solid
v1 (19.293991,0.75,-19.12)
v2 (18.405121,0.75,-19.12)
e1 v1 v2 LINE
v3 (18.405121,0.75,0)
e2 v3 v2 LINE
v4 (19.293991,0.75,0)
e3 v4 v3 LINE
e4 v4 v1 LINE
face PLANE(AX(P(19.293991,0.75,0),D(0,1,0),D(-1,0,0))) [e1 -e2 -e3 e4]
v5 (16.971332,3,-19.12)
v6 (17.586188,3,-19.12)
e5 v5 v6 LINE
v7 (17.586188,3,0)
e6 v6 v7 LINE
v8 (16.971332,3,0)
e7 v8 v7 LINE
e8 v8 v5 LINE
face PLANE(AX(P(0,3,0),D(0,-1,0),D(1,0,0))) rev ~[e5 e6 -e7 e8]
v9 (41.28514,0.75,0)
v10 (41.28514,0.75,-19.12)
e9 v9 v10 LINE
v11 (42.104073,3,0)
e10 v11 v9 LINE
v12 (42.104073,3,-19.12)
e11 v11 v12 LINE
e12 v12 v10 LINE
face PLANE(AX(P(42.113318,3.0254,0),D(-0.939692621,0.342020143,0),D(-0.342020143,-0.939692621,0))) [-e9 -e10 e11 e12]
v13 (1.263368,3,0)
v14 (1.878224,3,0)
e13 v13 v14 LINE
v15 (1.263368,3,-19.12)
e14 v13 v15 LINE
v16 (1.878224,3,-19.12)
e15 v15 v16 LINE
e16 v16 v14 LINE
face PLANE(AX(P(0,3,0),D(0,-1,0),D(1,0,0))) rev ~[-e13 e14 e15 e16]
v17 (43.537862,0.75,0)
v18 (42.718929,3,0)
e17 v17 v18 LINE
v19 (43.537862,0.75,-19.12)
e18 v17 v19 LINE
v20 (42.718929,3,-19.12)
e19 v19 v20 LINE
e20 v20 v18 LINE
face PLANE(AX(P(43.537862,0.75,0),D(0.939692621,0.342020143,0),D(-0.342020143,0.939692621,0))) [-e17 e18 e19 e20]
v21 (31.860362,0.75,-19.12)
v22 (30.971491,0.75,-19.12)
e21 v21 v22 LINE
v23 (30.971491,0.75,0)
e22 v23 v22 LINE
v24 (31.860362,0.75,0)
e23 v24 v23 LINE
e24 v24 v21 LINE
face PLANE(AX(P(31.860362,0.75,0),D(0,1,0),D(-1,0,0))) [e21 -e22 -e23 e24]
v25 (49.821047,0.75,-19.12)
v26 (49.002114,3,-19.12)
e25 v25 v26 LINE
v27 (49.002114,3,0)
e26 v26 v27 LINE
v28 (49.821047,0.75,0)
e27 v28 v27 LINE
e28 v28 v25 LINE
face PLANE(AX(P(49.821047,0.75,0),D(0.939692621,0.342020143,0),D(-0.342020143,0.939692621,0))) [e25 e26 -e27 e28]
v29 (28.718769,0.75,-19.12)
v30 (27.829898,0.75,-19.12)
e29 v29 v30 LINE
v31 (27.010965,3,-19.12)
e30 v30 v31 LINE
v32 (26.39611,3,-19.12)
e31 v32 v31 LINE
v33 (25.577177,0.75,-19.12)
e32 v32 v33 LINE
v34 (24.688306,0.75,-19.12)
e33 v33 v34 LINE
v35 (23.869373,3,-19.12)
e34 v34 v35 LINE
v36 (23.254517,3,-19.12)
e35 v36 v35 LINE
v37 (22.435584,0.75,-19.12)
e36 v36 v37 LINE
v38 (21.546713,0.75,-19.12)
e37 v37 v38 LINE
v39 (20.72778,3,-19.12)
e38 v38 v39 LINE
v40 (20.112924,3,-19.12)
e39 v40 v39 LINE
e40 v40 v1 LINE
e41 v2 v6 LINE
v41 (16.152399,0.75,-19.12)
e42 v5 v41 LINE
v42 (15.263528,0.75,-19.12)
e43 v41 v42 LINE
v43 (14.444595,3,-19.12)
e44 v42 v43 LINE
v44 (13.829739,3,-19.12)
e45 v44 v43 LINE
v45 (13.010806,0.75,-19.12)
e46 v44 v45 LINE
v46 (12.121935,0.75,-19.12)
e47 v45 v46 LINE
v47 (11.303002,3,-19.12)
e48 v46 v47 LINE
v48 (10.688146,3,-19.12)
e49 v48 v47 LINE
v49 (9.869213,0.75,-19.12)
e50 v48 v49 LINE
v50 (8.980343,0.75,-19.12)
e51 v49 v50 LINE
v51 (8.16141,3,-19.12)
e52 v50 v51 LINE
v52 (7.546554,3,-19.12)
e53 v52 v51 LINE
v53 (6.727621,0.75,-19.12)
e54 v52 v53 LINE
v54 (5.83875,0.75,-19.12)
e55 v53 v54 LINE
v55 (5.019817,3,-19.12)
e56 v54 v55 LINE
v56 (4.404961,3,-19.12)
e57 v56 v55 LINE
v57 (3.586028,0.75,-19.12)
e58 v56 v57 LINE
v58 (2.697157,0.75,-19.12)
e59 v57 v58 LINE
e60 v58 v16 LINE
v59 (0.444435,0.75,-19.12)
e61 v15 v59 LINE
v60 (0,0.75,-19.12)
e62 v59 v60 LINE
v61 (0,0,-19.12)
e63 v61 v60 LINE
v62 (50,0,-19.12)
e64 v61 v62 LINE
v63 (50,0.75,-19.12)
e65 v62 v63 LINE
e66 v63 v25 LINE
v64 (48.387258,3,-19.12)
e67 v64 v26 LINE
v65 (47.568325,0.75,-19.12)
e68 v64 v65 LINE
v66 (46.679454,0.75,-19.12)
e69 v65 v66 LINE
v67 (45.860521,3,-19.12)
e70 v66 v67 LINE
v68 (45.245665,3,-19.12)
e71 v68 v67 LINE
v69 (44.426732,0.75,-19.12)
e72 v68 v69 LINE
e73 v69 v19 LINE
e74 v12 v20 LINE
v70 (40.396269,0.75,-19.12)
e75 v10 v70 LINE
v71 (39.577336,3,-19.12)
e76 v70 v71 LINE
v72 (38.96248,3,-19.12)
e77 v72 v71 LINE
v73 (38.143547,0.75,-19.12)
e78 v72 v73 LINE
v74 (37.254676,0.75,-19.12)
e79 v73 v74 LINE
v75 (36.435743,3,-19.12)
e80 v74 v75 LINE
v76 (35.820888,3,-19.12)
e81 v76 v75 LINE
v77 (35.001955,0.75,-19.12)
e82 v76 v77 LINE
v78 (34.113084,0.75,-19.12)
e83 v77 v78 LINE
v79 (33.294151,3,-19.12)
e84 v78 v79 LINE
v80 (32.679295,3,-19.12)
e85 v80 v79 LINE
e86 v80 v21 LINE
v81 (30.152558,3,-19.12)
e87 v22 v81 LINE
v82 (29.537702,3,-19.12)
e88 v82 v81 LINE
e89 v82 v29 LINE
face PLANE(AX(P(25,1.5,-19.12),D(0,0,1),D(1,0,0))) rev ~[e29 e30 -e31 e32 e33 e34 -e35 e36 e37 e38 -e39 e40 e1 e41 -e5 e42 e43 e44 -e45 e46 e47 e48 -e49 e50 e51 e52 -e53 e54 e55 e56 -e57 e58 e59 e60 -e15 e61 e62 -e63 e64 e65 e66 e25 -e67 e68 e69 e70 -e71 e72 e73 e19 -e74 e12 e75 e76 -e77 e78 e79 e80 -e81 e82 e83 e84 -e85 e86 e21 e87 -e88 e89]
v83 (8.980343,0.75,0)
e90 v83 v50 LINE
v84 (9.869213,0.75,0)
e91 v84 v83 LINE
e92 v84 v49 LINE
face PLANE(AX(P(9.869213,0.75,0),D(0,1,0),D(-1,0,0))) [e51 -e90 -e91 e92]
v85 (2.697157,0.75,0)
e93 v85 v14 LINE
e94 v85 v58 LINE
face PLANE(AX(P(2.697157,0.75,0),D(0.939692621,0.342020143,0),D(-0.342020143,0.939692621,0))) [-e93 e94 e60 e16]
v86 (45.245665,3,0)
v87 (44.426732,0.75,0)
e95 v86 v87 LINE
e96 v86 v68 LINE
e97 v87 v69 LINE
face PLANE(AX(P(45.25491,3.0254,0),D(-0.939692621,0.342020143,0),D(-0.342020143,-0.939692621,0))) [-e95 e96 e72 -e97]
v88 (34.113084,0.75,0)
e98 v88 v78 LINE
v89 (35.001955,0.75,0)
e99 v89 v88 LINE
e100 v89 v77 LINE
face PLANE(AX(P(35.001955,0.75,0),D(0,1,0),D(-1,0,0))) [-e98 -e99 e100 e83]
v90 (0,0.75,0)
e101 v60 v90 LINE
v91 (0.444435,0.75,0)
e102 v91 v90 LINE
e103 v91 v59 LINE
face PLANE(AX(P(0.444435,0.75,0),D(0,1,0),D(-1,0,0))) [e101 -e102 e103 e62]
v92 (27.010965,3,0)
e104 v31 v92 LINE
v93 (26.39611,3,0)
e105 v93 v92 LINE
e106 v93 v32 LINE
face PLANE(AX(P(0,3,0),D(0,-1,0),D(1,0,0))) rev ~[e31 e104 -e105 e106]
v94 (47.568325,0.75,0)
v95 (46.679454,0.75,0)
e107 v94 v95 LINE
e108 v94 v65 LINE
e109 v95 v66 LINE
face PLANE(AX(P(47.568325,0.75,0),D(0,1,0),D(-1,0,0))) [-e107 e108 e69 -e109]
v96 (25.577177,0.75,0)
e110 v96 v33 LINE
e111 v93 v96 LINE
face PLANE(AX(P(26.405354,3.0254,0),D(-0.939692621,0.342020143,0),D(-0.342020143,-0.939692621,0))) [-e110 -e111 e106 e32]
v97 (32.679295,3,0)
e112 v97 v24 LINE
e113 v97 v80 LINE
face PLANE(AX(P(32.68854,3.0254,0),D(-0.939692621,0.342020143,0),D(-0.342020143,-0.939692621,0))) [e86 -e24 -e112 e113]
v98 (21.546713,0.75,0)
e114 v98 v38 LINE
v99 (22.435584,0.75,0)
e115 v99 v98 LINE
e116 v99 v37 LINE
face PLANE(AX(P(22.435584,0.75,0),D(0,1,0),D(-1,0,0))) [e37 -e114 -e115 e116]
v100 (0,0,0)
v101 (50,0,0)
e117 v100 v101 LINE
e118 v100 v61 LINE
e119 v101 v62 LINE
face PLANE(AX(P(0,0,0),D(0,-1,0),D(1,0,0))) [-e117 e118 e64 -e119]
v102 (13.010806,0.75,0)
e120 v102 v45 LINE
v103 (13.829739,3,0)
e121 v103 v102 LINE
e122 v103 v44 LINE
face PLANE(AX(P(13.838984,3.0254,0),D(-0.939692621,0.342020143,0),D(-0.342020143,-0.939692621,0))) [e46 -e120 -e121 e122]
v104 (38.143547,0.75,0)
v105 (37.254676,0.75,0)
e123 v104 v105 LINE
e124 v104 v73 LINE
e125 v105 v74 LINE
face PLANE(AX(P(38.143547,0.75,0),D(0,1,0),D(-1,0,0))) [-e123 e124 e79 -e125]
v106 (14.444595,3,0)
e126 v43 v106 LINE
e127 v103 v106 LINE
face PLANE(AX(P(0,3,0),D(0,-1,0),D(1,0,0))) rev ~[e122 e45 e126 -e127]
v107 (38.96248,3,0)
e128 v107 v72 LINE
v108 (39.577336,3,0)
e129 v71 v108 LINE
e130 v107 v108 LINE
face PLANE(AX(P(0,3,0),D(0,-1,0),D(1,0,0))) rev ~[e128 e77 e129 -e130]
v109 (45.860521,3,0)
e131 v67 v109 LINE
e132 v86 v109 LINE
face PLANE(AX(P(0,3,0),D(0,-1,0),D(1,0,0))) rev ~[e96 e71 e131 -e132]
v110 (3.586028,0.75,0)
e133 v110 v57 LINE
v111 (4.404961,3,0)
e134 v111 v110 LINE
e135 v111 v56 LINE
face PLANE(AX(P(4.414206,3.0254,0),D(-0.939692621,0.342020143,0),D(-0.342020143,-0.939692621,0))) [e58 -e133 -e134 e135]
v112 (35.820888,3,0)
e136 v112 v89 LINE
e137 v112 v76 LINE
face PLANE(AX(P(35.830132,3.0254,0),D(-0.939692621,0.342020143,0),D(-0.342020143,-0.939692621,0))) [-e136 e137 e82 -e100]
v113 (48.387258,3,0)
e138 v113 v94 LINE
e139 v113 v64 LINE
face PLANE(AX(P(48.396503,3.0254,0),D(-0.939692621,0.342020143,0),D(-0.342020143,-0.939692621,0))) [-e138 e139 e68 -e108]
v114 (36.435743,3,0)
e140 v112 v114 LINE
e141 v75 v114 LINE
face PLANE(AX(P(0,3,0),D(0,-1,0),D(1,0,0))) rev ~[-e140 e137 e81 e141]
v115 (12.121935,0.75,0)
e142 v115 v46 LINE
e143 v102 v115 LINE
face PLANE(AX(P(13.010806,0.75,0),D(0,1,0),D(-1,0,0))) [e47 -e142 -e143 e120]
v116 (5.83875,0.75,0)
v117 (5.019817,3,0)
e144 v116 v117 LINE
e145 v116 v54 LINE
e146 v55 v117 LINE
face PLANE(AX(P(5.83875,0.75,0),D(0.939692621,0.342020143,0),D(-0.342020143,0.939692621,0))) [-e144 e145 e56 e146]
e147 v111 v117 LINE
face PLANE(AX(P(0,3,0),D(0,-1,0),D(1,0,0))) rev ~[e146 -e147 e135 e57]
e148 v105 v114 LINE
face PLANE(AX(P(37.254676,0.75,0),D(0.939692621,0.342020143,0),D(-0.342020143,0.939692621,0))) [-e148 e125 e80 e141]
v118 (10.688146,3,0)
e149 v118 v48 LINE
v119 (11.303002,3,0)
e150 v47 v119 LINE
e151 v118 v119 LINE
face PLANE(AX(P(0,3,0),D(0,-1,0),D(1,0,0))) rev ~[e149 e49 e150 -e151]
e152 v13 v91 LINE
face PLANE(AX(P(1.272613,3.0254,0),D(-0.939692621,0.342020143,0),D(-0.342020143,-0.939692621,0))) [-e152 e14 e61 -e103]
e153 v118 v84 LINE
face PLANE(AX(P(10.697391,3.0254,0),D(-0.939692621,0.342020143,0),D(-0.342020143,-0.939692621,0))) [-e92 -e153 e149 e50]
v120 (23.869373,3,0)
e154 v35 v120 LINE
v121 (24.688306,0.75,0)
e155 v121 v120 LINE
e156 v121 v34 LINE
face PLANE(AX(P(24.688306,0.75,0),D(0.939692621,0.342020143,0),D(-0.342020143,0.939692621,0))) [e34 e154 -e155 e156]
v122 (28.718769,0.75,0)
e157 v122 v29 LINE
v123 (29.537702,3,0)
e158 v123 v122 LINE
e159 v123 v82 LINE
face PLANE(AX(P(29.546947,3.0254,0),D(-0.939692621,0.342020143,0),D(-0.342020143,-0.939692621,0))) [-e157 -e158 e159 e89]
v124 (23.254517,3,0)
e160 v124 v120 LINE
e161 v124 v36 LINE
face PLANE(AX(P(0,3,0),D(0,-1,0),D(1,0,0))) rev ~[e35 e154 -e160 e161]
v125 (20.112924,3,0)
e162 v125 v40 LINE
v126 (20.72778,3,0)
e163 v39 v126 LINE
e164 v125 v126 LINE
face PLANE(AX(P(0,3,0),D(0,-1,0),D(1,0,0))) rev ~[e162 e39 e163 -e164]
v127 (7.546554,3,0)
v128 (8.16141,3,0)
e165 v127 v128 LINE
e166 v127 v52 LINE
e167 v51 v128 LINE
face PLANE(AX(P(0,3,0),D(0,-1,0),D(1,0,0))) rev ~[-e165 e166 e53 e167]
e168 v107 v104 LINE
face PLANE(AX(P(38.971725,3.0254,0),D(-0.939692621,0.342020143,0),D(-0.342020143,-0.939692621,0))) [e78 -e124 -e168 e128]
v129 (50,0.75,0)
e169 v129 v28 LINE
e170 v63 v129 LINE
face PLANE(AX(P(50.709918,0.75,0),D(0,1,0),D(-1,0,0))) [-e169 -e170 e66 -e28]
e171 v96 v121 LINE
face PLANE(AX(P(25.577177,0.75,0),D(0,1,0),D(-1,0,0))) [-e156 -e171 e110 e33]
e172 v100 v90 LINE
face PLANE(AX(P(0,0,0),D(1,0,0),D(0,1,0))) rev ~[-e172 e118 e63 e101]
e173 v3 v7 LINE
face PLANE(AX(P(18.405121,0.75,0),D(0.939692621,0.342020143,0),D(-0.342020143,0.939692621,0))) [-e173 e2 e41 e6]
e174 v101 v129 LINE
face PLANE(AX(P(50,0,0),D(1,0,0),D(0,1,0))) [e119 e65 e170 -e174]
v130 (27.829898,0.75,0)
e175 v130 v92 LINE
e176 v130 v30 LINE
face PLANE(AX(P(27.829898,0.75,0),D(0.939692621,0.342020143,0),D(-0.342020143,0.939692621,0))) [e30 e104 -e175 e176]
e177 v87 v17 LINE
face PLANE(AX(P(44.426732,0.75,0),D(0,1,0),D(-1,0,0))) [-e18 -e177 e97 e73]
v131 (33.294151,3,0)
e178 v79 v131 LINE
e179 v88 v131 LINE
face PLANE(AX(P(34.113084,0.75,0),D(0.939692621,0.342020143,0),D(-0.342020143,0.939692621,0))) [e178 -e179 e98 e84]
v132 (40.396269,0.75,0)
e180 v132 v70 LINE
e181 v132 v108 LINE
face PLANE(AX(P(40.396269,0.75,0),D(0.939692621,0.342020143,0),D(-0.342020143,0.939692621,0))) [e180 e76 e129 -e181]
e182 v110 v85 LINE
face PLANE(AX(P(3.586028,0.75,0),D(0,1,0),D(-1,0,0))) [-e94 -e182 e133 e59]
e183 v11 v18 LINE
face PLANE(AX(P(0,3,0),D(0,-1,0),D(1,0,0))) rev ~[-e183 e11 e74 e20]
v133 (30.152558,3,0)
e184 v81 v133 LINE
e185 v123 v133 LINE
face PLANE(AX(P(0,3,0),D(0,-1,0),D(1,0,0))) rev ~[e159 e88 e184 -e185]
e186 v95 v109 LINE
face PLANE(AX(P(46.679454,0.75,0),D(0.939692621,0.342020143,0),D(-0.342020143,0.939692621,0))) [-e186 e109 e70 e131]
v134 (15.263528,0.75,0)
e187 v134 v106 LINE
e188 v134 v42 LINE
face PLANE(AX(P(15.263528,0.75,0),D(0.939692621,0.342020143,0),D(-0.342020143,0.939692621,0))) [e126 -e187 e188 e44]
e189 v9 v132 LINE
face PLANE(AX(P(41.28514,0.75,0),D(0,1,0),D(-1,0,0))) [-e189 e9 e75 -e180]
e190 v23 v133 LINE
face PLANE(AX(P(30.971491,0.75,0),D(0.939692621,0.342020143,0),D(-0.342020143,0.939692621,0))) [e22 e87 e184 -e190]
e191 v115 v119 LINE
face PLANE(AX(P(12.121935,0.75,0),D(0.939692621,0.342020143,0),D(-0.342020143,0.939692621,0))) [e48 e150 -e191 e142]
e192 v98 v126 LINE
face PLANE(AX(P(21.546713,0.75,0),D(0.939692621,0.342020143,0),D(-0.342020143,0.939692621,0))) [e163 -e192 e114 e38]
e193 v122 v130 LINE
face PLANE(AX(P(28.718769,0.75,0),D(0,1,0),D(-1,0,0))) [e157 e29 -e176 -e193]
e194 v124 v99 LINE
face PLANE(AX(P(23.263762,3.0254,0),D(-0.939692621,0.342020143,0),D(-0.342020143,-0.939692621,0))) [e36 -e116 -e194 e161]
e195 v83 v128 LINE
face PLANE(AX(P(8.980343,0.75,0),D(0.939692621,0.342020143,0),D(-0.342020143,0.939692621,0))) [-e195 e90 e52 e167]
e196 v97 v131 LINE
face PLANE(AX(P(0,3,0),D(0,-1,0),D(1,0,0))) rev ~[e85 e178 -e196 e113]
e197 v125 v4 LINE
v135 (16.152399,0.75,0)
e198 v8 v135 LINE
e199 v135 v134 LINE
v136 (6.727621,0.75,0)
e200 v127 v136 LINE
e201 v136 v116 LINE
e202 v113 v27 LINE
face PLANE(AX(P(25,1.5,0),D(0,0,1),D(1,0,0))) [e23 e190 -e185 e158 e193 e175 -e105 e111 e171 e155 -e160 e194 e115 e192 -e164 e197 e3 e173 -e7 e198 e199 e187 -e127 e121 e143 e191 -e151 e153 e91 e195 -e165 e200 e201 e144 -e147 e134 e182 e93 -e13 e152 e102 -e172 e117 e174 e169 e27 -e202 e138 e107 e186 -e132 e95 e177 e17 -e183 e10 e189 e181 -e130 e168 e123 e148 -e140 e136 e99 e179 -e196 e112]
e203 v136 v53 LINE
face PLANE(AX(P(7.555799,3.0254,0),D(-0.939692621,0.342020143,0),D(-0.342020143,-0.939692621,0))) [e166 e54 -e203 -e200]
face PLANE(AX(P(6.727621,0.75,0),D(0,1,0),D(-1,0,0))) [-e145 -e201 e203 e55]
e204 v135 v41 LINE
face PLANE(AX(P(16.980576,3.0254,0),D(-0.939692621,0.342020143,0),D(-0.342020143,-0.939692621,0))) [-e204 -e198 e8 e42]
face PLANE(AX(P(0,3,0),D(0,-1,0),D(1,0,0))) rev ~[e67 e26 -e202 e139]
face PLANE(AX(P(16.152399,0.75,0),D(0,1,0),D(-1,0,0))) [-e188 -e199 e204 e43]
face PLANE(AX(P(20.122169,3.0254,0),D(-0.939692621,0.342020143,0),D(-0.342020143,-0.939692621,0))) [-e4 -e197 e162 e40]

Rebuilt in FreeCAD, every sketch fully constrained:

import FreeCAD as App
import Part
import Sketcher

V = App.Vector
Q = App.Units.Quantity

doc = App.newDocument("Part")
body = doc.addObject("PartDesign::Body", "Body")

sketch1 = body.newObject("Sketcher::SketchObject", "Sketch")
sketch1.AttachmentSupport = (doc.getObject("XY_Plane"), [""])
sketch1.MapMode = "FlatFace"
sketch1.addGeometry(Part.LineSegment(V(0, 3, 0), V(0, 0, 0)), False)
sketch1.addGeometry(Part.LineSegment(V(0, 0, 0), V(50, 0, 0)), False)
sketch1.addGeometry(Part.LineSegment(V(50, 0, 0), V(50, 3, 0)), False)
sketch1.addGeometry(Part.LineSegment(V(50, 3, 0), V(0, 3, 0)), False)
sketch1.addConstraint(Sketcher.Constraint("Coincident", 0, 2, 1, 1))
sketch1.addConstraint(Sketcher.Constraint("Coincident", 1, 2, 2, 1))
sketch1.addConstraint(Sketcher.Constraint("Coincident", 2, 2, 3, 1))
sketch1.addConstraint(Sketcher.Constraint("Coincident", 3, 2, 0, 1))
sketch1.addConstraint(Sketcher.Constraint("Vertical", 0))
sketch1.addConstraint(Sketcher.Constraint("Horizontal", 1))
sketch1.addConstraint(Sketcher.Constraint("Vertical", 2))
sketch1.addConstraint(Sketcher.Constraint("Horizontal", 3))
sketch1.addConstraint(Sketcher.Constraint("Coincident", 0, 2, -1, 1))
sketch1.addConstraint(Sketcher.Constraint("DistanceX", 1, 1, 1, 2, Q("50 mm")))
sketch1.addConstraint(Sketcher.Constraint("DistanceY", 0, 2, 0, 1, Q("3 mm")))
pad1 = body.newObject("PartDesign::Pad", "Pad")
pad1.Profile = sketch1
pad1.Length = 19.12
pad1.Reversed = True

sketch2 = body.newObject("Sketcher::SketchObject", "Sketch001")
sketch2.AttachmentSupport = (doc.getObject("XY_Plane"), [""])
sketch2.MapMode = "FlatFace"
sketch2.addGeometry(Part.LineSegment(V(-0.4, 0.8, 0), V(0.4, 0.8, 0)), False)
sketch2.addGeometry(Part.LineSegment(V(0.4, 0.8, 0), V(1.3, 3, 0)), False)
sketch2.addGeometry(Part.LineSegment(V(1.3, 3, 0), V(-1.3, 3, 0)), False)
sketch2.addGeometry(Part.LineSegment(V(-1.3, 3, 0), V(-0.4, 0.8, 0)), False)
sketch2.addConstraint(Sketcher.Constraint("Coincident", 0, 2, 1, 1))
sketch2.addConstraint(Sketcher.Constraint("Coincident", 1, 2, 2, 1))
sketch2.addConstraint(Sketcher.Constraint("Coincident", 2, 2, 3, 1))
sketch2.addConstraint(Sketcher.Constraint("Coincident", 3, 2, 0, 1))
sketch2.addConstraint(Sketcher.Constraint("Horizontal", 0))
sketch2.addConstraint(Sketcher.Constraint("Horizontal", 2))
sketch2.addConstraint(Sketcher.Constraint("Equal", 1, 3))
sketch2.addConstraint(Sketcher.Constraint("Angle", 1, Q("70 deg")))
sketch2.addConstraint(Sketcher.Constraint("DistanceY", -1, 1, 0, 2, Q("0.75 mm")))
sketch2.addConstraint(Sketcher.Constraint("DistanceX", 0, 1, 0, 2, Q("0.888871 mm")))
sketch2.addConstraint(Sketcher.Constraint("DistanceY", -1, 1, 1, 2, Q("3.0254 mm")))
sketch2.addConstraint(Sketcher.Constraint("DistanceX", -1, 1, 0, 2, Q("0.444435 mm")))
pocket1 = body.newObject("PartDesign::Pocket", "Pocket")
pocket1.Profile = sketch2
pocket1.Type = "ThroughAll"
doc.recompute()

linearpattern = body.newObject("PartDesign::LinearPattern", "LinearPattern")
linearpattern.Originals = [pocket1]
linearpattern.Direction = (doc.getObject("X_Axis"), [""])
linearpattern.Mode = "offset"
linearpattern.Offset = 3.141593
linearpattern.Occurrences = 17
body.Tip = linearpattern

doc.recompute()
